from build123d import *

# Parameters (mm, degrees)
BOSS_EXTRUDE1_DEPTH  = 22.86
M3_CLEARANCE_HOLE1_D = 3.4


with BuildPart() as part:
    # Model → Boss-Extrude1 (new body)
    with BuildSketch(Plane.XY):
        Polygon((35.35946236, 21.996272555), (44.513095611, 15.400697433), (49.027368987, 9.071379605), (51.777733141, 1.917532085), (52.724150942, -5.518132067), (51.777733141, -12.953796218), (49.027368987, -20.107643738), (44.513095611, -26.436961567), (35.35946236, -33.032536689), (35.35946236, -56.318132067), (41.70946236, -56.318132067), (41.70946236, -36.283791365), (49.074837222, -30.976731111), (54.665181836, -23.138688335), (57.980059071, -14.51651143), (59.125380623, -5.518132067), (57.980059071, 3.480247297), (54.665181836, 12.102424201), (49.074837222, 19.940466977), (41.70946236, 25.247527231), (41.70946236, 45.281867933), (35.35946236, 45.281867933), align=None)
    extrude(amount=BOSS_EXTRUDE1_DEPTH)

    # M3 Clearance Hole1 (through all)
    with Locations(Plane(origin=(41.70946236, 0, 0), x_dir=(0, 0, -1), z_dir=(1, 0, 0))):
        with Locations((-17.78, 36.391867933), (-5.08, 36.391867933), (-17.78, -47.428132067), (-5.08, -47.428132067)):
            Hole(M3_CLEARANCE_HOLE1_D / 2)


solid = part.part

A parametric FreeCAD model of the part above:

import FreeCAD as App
import Part
import Sketcher
Q = App.Units.Quantity

doc = App.newDocument("Part")
params = doc.addObject("Spreadsheet::Sheet", "Params")
for row, (alias, value) in enumerate([
    ("sketch1_width", "0.25 in"),
    ("pad1_length", "0.9 in"),
    ("hole_diameter", "3.4 mm"),
], start=1):
    params.set(f"A{row}", alias)
    params.set(f"B{row}", "=" + value)
    params.setAlias(f"B{row}", alias)

body = doc.addObject("PartDesign::Body", "Body")

# Sketch on XY plane
sketch1 = body.newObject("Sketcher::SketchObject", "Sketch")
sketch1.AttachmentSupport = (doc.getObject("XY_Plane"), [""])
sketch1.MapMode = "FlatFace"
sketch1.addGeometry(Part.LineSegment(App.Vector(35, 22, 0), App.Vector(45, 15, 0)), False)
sketch1.addGeometry(Part.LineSegment(App.Vector(45, 15, 0), App.Vector(49, 9, 0)), False)
sketch1.addGeometry(Part.LineSegment(App.Vector(49, 9, 0), App.Vector(52, 2, 0)), False)
sketch1.addGeometry(Part.LineSegment(App.Vector(52, 2, 0), App.Vector(53, -6, 0)), False)
sketch1.addGeometry(Part.LineSegment(App.Vector(53, -6, 0), App.Vector(52, -13, 0)), False)
sketch1.addGeometry(Part.LineSegment(App.Vector(52, -13, 0), App.Vector(49, -20, 0)), False)
sketch1.addGeometry(Part.LineSegment(App.Vector(49, -20, 0), App.Vector(45, -26, 0)), False)
sketch1.addGeometry(Part.LineSegment(App.Vector(45, -26, 0), App.Vector(35, -33, 0)), False)
sketch1.addGeometry(Part.LineSegment(App.Vector(35, -33, 0), App.Vector(35, -56, 0)), False)
sketch1.addGeometry(Part.LineSegment(App.Vector(35, -56, 0), App.Vector(42, -56, 0)), False)
sketch1.addGeometry(Part.LineSegment(App.Vector(42, -56, 0), App.Vector(42, -36, 0)), False)
sketch1.addGeometry(Part.LineSegment(App.Vector(42, -36, 0), App.Vector(49, -31, 0)), False)
sketch1.addGeometry(Part.LineSegment(App.Vector(49, -31, 0), App.Vector(55, -23, 0)), False)
sketch1.addGeometry(Part.LineSegment(App.Vector(55, -23, 0), App.Vector(58, -15, 0)), False)
sketch1.addGeometry(Part.LineSegment(App.Vector(58, -15, 0), App.Vector(59, -6, 0)), False)
sketch1.addGeometry(Part.LineSegment(App.Vector(59, -6, 0), App.Vector(58, 3, 0)), False)
sketch1.addGeometry(Part.LineSegment(App.Vector(58, 3, 0), App.Vector(55, 12, 0)), False)
sketch1.addGeometry(Part.LineSegment(App.Vector(55, 12, 0), App.Vector(49, 20, 0)), False)
sketch1.addGeometry(Part.LineSegment(App.Vector(49, 20, 0), App.Vector(42, 25, 0)), False)
sketch1.addGeometry(Part.LineSegment(App.Vector(42, 25, 0), App.Vector(42, 45, 0)), False)
sketch1.addGeometry(Part.LineSegment(App.Vector(42, 45, 0), App.Vector(35, 45, 0)), False)
sketch1.addGeometry(Part.LineSegment(App.Vector(35, 45, 0), App.Vector(35, 22, 0)), False)
sketch1.addConstraint(Sketcher.Constraint("Coincident", 0, 2, 1, 1))
sketch1.addConstraint(Sketcher.Constraint("Coincident", 1, 2, 2, 1))
sketch1.addConstraint(Sketcher.Constraint("Coincident", 2, 2, 3, 1))
sketch1.addConstraint(Sketcher.Constraint("Coincident", 3, 2, 4, 1))
sketch1.addConstraint(Sketcher.Constraint("Coincident", 4, 2, 5, 1))
sketch1.addConstraint(Sketcher.Constraint("Coincident", 5, 2, 6, 1))
sketch1.addConstraint(Sketcher.Constraint("Coincident", 6, 2, 7, 1))
sketch1.addConstraint(Sketcher.Constraint("Coincident", 7, 2, 8, 1))
sketch1.addConstraint(Sketcher.Constraint("Coincident", 8, 2, 9, 1))
sketch1.addConstraint(Sketcher.Constraint("Coincident", 9, 2, 10, 1))
sketch1.addConstraint(Sketcher.Constraint("Coincident", 10, 2, 11, 1))
sketch1.addConstraint(Sketcher.Constraint("Coincident", 11, 2, 12, 1))
sketch1.addConstraint(Sketcher.Constraint("Coincident", 12, 2, 13, 1))
sketch1.addConstraint(Sketcher.Constraint("Coincident", 13, 2, 14, 1))
sketch1.addConstraint(Sketcher.Constraint("Coincident", 14, 2, 15, 1))
sketch1.addConstraint(Sketcher.Constraint("Coincident", 15, 2, 16, 1))
sketch1.addConstraint(Sketcher.Constraint("Coincident", 16, 2, 17, 1))
sketch1.addConstraint(Sketcher.Constraint("Coincident", 17, 2, 18, 1))
sketch1.addConstraint(Sketcher.Constraint("Coincident", 18, 2, 19, 1))
sketch1.addConstraint(Sketcher.Constraint("Coincident", 19, 2, 20, 1))
sketch1.addConstraint(Sketcher.Constraint("Coincident", 20, 2, 21, 1))
sketch1.addConstraint(Sketcher.Constraint("Coincident", 21, 2, 0, 1))
sketch1.addConstraint(Sketcher.Constraint("Vertical", 8))
sketch1.addConstraint(Sketcher.Constraint("Horizontal", 9))
sketch1.addConstraint(Sketcher.Constraint("Vertical", 10))
sketch1.addConstraint(Sketcher.Constraint("Vertical", 19))
sketch1.addConstraint(Sketcher.Constraint("Horizontal", 20))
sketch1.addConstraint(Sketcher.Constraint("Vertical", 21))
sketch1.addConstraint(Sketcher.Constraint("Parallel", 7, 11))
sketch1.addConstraint(Sketcher.Constraint("Parallel", 6, 12))
sketch1.addConstraint(Sketcher.Constraint("Parallel", 5, 13))
sketch1.addConstraint(Sketcher.Constraint("Parallel", 4, 14))
sketch1.addConstraint(Sketcher.Constraint("Parallel", 3, 15))
sketch1.addConstraint(Sketcher.Constraint("Parallel", 2, 16))
sketch1.addConstraint(Sketcher.Constraint("Parallel", 1, 17))
sketch1.addConstraint(Sketcher.Constraint("Parallel", 0, 18))
sketch1.addConstraint(Sketcher.Constraint("Horizontal", 3, 2, 14, 2))
sketch1.addConstraint(Sketcher.Constraint("Vertical", 2, 2, 4, 2))
sketch1.addConstraint(Sketcher.Constraint("Vertical", 1, 2, 5, 2))
sketch1.addConstraint(Sketcher.Constraint("Vertical", 0, 2, 6, 2))
sketch1.addConstraint(Sketcher.Constraint("Vertical", 13, 2, 15, 2))
sketch1.addConstraint(Sketcher.Constraint("Vertical", 12, 2, 16, 2))
sketch1.addConstraint(Sketcher.Constraint("Vertical", 11, 2, 17, 2))
sketch1.addConstraint(Sketcher.Constraint("Vertical", 10, 2, 18, 2))
sketch1.addConstraint(Sketcher.Constraint("Vertical", 8, 2, 20, 2))
sketch1.addConstraint(Sketcher.Constraint("Equal", 10, 19))
sketch1.addConstraint(Sketcher.Constraint("Equal", 8, 21))
sketch1.addConstraint(Sketcher.Constraint("Equal", 3, 4))
sketch1.addConstraint(Sketcher.Constraint("Equal", 2, 5))
sketch1.addConstraint(Sketcher.Constraint("Equal", 1, 6))
sketch1.addConstraint(Sketcher.Constraint("DistanceY", 8, 2, 3, 2, Q("2 in")))
sketch1.addConstraint(Sketcher.Constraint("DistanceX", 9, 1, 9, 2, Q("0.25 in")))
sketch1.addConstraint(Sketcher.Constraint("Distance", 12, 9.627402))
sketch1.addConstraint(Sketcher.Constraint("DistanceY", 10, 1, 10, 2, 20.034341))
sketch1.addConstraint(Sketcher.Constraint("DistanceY", 17, 2, 19, 2, 25.341401))
sketch1.addConstraint(Sketcher.Constraint("DistanceY", 8, 2, 8, 1, 23.285595))
sketch1.addConstraint(Sketcher.Constraint("DistanceX", -1, 1, 1, 2, 49.027369))
sketch1.addConstraint(Sketcher.Constraint("DistanceY", -1, 1, 1, 2, 9.07138))
sketch1.addConstraint(Sketcher.Constraint("DistanceX", -1, 1, 3, 2, 52.724151))
sketch1.addConstraint(Sketcher.Constraint("DistanceY", 6, 2, -1, 1, 26.436962))
sketch1.addConstraint(Sketcher.Constraint("DistanceY", 10, 2, -1, 1, 36.283791))
sketch1.addConstraint(Sketcher.Constraint("DistanceX", -1, 1, 12, 2, 54.665182))
sketch1.addConstraint(Sketcher.Constraint("DistanceY", 12, 2, -1, 1, 23.138688))
sketch1.addConstraint(Sketcher.Constraint("DistanceX", -1, 1, 13, 2, 57.980059))
sketch1.addConstraint(Sketcher.Constraint("DistanceY", 13, 2, -1, 1, 14.516511))
sketch1.addConstraint(Sketcher.Constraint("DistanceX", -1, 1, 14, 2, 59.125381))
sketch1.setExpression("Constraints[51]", "Params.sketch1_width")
pad1 = body.newObject("PartDesign::Pad", "Pad")
pad1.Profile = sketch1
pad1.setExpression("Length", "Params.pad1_length")

# Sketch on YZ plane
sketch2 = body.newObject("Sketcher::SketchObject", "Sketch001")
sketch2.AttachmentSupport = (doc.getObject("YZ_Plane"), [""])
sketch2.MapMode = "FlatFace"
sketch2.AttachmentOffset = App.Placement(App.Vector(0, 0, 41.709462), App.Rotation())
sketch2.addGeometry(Part.Circle(App.Vector(36.4, 17.8, 0), App.Vector(0, 0, 1), 1.7), False)
sketch2.addGeometry(Part.Circle(App.Vector(36.4, 5.1, 0), App.Vector(0, 0, 1), 1.7), False)
sketch2.addGeometry(Part.Circle(App.Vector(-47.4, 17.8, 0), App.Vector(0, 0, 1), 1.7), False)
sketch2.addGeometry(Part.Circle(App.Vector(-47.4, 5.1, 0), App.Vector(0, 0, 1), 1.7), False)
sketch2.addConstraint(Sketcher.Constraint("Equal", 0, 1))
sketch2.addConstraint(Sketcher.Constraint("Equal", 1, 2))
sketch2.addConstraint(Sketcher.Constraint("Equal", 2, 3))
sketch2.addConstraint(Sketcher.Constraint("Horizontal", 0, 3, 2, 3))
sketch2.addConstraint(Sketcher.Constraint("Horizontal", 1, 3, 3, 3))
sketch2.addConstraint(Sketcher.Constraint("Vertical", 0, 3, 1, 3))
sketch2.addConstraint(Sketcher.Constraint("Vertical", 2, 3, 3, 3))
sketch2.addConstraint(Sketcher.Constraint("DistanceY", -1, 1, 0, 3, Q("0.7 in")))
sketch2.addConstraint(Sketcher.Constraint("DistanceY", -1, 1, 1, 3, Q("0.2 in")))
sketch2.addConstraint(Sketcher.Constraint("DistanceX", 2, 3, 0, 3, Q("3.3 in")))
sketch2.addConstraint(Sketcher.Constraint("Diameter", 0, 3.4))
sketch2.addConstraint(Sketcher.Constraint("DistanceX", -1, 1, 0, 3, 36.391868))
doc.recompute()
hole = body.newObject("PartDesign::Hole", "Hole")
hole.Profile = sketch2
hole.ThreadType = "None"
hole.setExpression("Diameter", "Params.hole_diameter")
hole.DepthType = "ThroughAll"

doc.recompute()
